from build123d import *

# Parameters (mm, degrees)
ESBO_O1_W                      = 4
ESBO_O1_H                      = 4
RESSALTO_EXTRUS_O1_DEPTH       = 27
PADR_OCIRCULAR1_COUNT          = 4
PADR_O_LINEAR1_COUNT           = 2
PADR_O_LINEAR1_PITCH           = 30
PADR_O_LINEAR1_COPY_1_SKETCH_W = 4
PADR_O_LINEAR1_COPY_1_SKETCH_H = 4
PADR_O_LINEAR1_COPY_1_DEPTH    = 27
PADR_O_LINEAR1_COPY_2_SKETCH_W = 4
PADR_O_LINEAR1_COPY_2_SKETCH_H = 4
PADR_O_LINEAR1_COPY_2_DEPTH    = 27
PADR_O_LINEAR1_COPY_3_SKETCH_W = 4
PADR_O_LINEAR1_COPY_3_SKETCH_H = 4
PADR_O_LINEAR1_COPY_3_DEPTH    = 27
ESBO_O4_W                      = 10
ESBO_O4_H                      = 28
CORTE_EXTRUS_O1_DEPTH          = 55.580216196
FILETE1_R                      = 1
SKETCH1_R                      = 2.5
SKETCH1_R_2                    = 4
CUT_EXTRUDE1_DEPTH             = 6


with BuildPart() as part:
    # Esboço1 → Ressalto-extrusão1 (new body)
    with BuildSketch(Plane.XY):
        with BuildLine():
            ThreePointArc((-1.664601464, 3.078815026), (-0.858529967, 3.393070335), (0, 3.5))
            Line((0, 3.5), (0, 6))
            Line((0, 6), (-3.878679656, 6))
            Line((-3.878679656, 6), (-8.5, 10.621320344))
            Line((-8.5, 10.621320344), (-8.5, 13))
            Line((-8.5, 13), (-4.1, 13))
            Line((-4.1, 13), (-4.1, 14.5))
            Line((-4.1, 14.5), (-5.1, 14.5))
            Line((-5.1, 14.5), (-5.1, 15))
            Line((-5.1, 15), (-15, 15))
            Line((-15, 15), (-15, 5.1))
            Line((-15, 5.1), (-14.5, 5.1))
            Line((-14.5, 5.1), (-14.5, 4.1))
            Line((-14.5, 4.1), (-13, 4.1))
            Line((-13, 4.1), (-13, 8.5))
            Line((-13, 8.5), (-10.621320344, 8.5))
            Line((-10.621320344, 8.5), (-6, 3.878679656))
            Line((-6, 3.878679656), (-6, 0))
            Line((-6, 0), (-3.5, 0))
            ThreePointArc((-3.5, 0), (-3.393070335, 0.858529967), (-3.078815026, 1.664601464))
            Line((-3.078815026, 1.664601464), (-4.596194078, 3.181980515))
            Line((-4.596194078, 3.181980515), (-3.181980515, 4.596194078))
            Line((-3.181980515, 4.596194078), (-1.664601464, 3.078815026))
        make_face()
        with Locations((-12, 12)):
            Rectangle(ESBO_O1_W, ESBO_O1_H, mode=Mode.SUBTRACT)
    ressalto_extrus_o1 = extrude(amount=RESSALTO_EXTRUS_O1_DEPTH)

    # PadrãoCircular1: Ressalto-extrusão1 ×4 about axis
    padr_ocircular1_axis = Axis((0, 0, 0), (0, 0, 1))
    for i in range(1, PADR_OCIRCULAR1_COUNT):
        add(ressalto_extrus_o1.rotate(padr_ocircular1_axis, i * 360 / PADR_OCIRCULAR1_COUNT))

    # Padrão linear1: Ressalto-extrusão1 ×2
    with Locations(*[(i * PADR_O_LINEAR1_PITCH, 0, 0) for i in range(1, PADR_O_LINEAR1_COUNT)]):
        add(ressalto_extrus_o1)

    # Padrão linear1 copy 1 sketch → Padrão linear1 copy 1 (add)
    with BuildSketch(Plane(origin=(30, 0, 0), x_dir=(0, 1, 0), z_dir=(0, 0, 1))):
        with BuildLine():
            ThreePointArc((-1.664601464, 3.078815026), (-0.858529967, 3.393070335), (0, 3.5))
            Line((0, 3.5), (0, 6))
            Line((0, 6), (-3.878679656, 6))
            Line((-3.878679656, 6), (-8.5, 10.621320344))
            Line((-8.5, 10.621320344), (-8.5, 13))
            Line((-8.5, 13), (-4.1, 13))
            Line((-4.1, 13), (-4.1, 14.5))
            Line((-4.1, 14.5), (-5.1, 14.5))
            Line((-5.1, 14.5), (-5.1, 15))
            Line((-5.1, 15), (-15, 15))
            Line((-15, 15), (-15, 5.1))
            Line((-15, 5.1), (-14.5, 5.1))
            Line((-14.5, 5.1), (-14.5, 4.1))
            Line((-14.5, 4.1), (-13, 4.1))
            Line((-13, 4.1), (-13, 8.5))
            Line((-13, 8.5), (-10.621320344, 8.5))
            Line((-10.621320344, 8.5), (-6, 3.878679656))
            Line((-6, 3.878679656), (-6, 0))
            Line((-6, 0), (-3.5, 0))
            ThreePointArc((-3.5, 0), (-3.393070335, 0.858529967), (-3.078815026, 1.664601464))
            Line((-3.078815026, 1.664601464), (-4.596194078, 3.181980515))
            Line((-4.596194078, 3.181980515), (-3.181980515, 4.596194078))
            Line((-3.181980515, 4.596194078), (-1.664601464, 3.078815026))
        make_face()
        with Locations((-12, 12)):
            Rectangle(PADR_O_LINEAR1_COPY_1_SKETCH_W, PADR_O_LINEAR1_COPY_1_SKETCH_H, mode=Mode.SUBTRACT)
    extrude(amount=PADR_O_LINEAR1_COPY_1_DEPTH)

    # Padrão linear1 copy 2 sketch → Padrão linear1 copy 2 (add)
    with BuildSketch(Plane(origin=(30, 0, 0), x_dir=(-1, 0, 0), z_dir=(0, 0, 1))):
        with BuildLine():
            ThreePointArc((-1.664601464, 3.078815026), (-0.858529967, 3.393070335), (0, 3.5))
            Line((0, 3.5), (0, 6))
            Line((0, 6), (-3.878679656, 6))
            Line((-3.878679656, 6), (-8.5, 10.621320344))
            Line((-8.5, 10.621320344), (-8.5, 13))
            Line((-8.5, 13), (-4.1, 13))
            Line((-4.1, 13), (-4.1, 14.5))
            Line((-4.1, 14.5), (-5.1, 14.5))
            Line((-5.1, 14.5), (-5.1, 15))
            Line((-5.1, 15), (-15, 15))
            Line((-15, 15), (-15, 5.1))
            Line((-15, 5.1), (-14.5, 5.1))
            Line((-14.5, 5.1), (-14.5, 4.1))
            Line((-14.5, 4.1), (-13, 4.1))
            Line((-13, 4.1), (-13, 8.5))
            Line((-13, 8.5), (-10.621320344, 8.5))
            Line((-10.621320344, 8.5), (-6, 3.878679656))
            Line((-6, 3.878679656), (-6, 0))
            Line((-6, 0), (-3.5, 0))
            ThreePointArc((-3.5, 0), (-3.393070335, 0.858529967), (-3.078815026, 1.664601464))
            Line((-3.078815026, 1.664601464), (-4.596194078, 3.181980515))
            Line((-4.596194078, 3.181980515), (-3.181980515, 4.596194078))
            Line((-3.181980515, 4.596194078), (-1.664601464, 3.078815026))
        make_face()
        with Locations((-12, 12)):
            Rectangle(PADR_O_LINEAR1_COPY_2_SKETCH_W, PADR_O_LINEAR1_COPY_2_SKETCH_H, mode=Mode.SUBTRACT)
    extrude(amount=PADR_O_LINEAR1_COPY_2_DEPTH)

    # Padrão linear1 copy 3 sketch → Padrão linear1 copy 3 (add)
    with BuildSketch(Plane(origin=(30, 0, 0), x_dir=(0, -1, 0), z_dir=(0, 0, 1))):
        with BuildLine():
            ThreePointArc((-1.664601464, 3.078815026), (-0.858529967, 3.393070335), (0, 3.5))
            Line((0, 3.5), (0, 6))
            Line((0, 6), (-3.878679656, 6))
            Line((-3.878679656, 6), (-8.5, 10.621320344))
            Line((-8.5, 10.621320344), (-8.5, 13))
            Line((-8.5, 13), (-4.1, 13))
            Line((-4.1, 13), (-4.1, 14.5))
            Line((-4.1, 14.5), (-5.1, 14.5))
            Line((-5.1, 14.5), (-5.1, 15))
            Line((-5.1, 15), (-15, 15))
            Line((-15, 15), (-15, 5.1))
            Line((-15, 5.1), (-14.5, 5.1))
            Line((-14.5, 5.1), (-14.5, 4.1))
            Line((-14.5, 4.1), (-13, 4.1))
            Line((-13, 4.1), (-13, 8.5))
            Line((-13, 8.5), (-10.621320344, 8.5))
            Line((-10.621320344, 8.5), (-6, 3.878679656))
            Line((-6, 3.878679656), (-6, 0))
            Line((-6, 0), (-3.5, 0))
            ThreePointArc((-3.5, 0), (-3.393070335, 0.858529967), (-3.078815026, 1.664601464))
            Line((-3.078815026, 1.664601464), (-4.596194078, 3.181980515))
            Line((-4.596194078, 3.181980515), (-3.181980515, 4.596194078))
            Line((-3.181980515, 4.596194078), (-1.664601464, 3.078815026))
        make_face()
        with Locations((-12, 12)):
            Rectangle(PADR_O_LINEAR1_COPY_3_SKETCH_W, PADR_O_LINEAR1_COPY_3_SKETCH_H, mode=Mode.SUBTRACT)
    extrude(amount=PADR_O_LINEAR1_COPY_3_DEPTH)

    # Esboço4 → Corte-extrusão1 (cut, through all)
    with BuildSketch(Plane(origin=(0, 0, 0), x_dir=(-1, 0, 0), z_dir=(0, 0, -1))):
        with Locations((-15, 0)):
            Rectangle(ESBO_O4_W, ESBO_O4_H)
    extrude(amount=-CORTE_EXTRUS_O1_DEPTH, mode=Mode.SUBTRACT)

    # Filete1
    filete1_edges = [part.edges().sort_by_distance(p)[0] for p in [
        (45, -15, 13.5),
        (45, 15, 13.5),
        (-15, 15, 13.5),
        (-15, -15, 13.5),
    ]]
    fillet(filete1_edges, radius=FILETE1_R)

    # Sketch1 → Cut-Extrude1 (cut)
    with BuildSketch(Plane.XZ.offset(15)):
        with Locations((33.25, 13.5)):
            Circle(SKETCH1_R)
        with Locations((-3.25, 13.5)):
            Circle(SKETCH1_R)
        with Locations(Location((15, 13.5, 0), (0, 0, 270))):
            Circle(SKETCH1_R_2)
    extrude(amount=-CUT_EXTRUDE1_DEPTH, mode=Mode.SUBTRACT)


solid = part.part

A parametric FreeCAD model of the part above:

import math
import FreeCAD as App
import Part
import Sketcher

V = App.Vector
Q = App.Units.Quantity


def edges_at(feature, points):
    """Names of the edges that pass closest to the given points."""
    edges = feature.Shape.Edges
    near = lambda p: min(range(len(edges)), key=lambda i: edges[i].distToShape(Part.Vertex(*p))[0])
    return sorted({f"Edge{near(p) + 1}" for p in points})


def add_polygon(sketch, points):
    """Adds a closed chain of lines whose ends are joined by coincident constraints."""
    first, n = sketch.GeometryCount, len(points)
    for a, b in zip(points, points[1:] + points[:1]):
        sketch.addGeometry(Part.LineSegment(App.Vector(*a, 0), App.Vector(*b, 0)), False)
    for i in range(n):
        sketch.addConstraint(Sketcher.Constraint("Coincident", first + i, 2, first + (i + 1) % n, 1))

doc = App.newDocument("Part")
body = doc.addObject("PartDesign::Body", "Body")

sketch1 = body.newObject("Sketcher::SketchObject", "Sketch")
sketch1.AttachmentSupport = (doc.getObject("XY_Plane"), [""])
sketch1.MapMode = "FlatFace"
sketch1.addGeometry(Part.ArcOfCircle(Part.Circle(V(0, 0, 0), V(0, 0, 1), 3.5), math.radians(90), math.radians(118)), False)
sketch1.addGeometry(Part.LineSegment(V(0, 3.5, 0), V(0, 6, 0)), False)
sketch1.addGeometry(Part.LineSegment(V(0, 6, 0), V(-3.9, 6, 0)), False)
sketch1.addGeometry(Part.LineSegment(V(-3.9, 6, 0), V(-8.5, 10.6, 0)), False)
sketch1.addGeometry(Part.LineSegment(V(-8.5, 10.6, 0), V(-8.5, 13, 0)), False)
sketch1.addGeometry(Part.LineSegment(V(-8.5, 13, 0), V(-4.1, 13, 0)), False)
sketch1.addGeometry(Part.LineSegment(V(-4.1, 13, 0), V(-4.1, 14.5, 0)), False)
sketch1.addGeometry(Part.LineSegment(V(-4.1, 14.5, 0), V(-5.1, 14.5, 0)), False)
sketch1.addGeometry(Part.LineSegment(V(-5.1, 14.5, 0), V(-5.1, 15, 0)), False)
sketch1.addGeometry(Part.LineSegment(V(-5.1, 15, 0), V(-15, 15, 0)), False)
sketch1.addGeometry(Part.LineSegment(V(-15, 15, 0), V(-15, 5.1, 0)), False)
sketch1.addGeometry(Part.LineSegment(V(-15, 5.1, 0), V(-14.5, 5.1, 0)), False)
sketch1.addGeometry(Part.LineSegment(V(-14.5, 5.1, 0), V(-14.5, 4.1, 0)), False)
sketch1.addGeometry(Part.LineSegment(V(-14.5, 4.1, 0), V(-13, 4.1, 0)), False)
sketch1.addGeometry(Part.LineSegment(V(-13, 4.1, 0), V(-13, 8.5, 0)), False)
sketch1.addGeometry(Part.LineSegment(V(-13, 8.5, 0), V(-10.6, 8.5, 0)), False)
sketch1.addGeometry(Part.LineSegment(V(-10.6, 8.5, 0), V(-6, 3.9, 0)), False)
sketch1.addGeometry(Part.LineSegment(V(-6, 3.9, 0), V(-6, 0, 0)), False)
sketch1.addGeometry(Part.LineSegment(V(-6, 0, 0), V(-3.5, 0, 0)), False)
sketch1.addGeometry(Part.ArcOfCircle(Part.Circle(V(0, 0, 0), V(0, 0, 1), 3.5), math.radians(152), math.radians(180)), False)
sketch1.addGeometry(Part.LineSegment(V(-3.1, 1.7, 0), V(-4.6, 3.2, 0)), False)
sketch1.addGeometry(Part.LineSegment(V(-4.6, 3.2, 0), V(-3.2, 4.6, 0)), False)
sketch1.addGeometry(Part.LineSegment(V(-3.2, 4.6, 0), V(-1.7, 3.1, 0)), False)
add_polygon(sketch1, [(-10, 10), (-14, 10), (-14, 14), (-10, 14)])
sketch1.addConstraint([
    Sketcher.Constraint("Coincident", 0, 1, 1, 1),
    Sketcher.Constraint("Coincident", 1, 2, 2, 1),
    Sketcher.Constraint("Coincident", 2, 2, 3, 1),
    Sketcher.Constraint("Coincident", 3, 2, 4, 1),
    Sketcher.Constraint("Coincident", 4, 2, 5, 1),
    Sketcher.Constraint("Coincident", 5, 2, 6, 1),
    Sketcher.Constraint("Coincident", 6, 2, 7, 1),
    Sketcher.Constraint("Coincident", 7, 2, 8, 1),
    Sketcher.Constraint("Coincident", 8, 2, 9, 1),
    Sketcher.Constraint("Coincident", 9, 2, 10, 1),
    Sketcher.Constraint("Coincident", 10, 2, 11, 1),
    Sketcher.Constraint("Coincident", 11, 2, 12, 1),
    Sketcher.Constraint("Coincident", 12, 2, 13, 1),
    Sketcher.Constraint("Coincident", 13, 2, 14, 1),
    Sketcher.Constraint("Coincident", 14, 2, 15, 1),
    Sketcher.Constraint("Coincident", 15, 2, 16, 1),
    Sketcher.Constraint("Coincident", 16, 2, 17, 1),
    Sketcher.Constraint("Coincident", 17, 2, 18, 1),
    Sketcher.Constraint("Coincident", 18, 2, 19, 2),
    Sketcher.Constraint("Coincident", 19, 1, 20, 1),
    Sketcher.Constraint("Coincident", 20, 2, 21, 1),
    Sketcher.Constraint("Coincident", 21, 2, 22, 1),
    Sketcher.Constraint("Coincident", 22, 2, 0, 2),
    Sketcher.Constraint("Vertical", 1),
    Sketcher.Constraint("Horizontal", 2),
    Sketcher.Constraint("Vertical", 4),
    Sketcher.Constraint("Horizontal", 5),
    Sketcher.Constraint("Vertical", 6),
    Sketcher.Constraint("Horizontal", 7),
    Sketcher.Constraint("Vertical", 8),
    Sketcher.Constraint("Horizontal", 9),
    Sketcher.Constraint("Vertical", 10),
    Sketcher.Constraint("Horizontal", 11),
    Sketcher.Constraint("Vertical", 12),
    Sketcher.Constraint("Horizontal", 13),
    Sketcher.Constraint("Vertical", 14),
    Sketcher.Constraint("Horizontal", 15),
    Sketcher.Constraint("Vertical", 17),
    Sketcher.Constraint("Horizontal", 18),
    Sketcher.Constraint("Horizontal", 23),
    Sketcher.Constraint("Vertical", 24),
    Sketcher.Constraint("Horizontal", 25),
    Sketcher.Constraint("Vertical", 26),
    Sketcher.Constraint("Coincident", 0, 3, -1, 1),
    Sketcher.Constraint("Coincident", 19, 3, -1, 1),
    Sketcher.Constraint("Equal", 0, 19),
    Sketcher.Constraint("PointOnObject", 0, 1, -2),
    Sketcher.Constraint("PointOnObject", 17, 2, -1),
    Sketcher.Constraint("Parallel", 3, 16),
    Sketcher.Constraint("Parallel", 16, 20),
    Sketcher.Constraint("Perpendicular", 20, 21),
    Sketcher.Constraint("Perpendicular", 21, 22),
    Sketcher.Constraint("Equal", 18, 1),
    Sketcher.Constraint("Equal", 15, 4),
    Sketcher.Constraint("Equal", 13, 6),
    Sketcher.Constraint("Equal", 11, 8),
    Sketcher.Constraint("Equal", 9, 10),
    Sketcher.Constraint("Equal", 7, 12),
    Sketcher.Constraint("Equal", 5, 14),
    Sketcher.Constraint("Equal", 2, 17),
    Sketcher.Constraint("Equal", 25, 24),
    Sketcher.Constraint("Equal", 20, 22),
    Sketcher.Constraint("Radius", 0, Q("3.5 mm")),
    Sketcher.Constraint("DistanceX", 7, 2, 7, 1, Q("1 mm")),
    Sketcher.Constraint("DistanceX", 23, 2, 23, 1, Q("4 mm")),
    Sketcher.Constraint("Angle", 3, Q("135 deg")),
    Sketcher.Constraint("Distance", 21, Q("2 mm")),
    Sketcher.Constraint("DistanceX", 5, 1, 5, 2, Q("4.4 mm")),
    Sketcher.Constraint("DistanceX", 9, 2, 9, 1, Q("9.9 mm")),
    Sketcher.Constraint("DistanceX", 11, 1, 11, 2, Q("0.5 mm")),
    Sketcher.Constraint("DistanceX", 13, 1, 13, 2, Q("1.5 mm")),
    Sketcher.Constraint("DistanceX", 18, 1, 18, 2, Q("2.5 mm")),
    Sketcher.Constraint("DistanceY", -1, 1, 4, 2, Q("13 mm")),
    Sketcher.Constraint("DistanceX", 23, 2, -1, 1, Q("14 mm")),
    Sketcher.Constraint("DistanceY", -1, 1, 23, 2, Q("10 mm")),
    Sketcher.Constraint("Distance", 20, Q("2.145898 mm")),
    Sketcher.Constraint("DistanceX", 2, 2, 2, 1, Q("3.87868 mm")),
])
pad1 = body.newObject("PartDesign::Pad", "Pad")
pad1.Profile = sketch1
pad1.Length = 27
doc.recompute()

polarpattern = body.newObject("PartDesign::PolarPattern", "PolarPattern")
polarpattern.Originals = [pad1]
polarpattern.Axis = (doc.getObject("Z_Axis"), [""])
polarpattern.Angle = 360
polarpattern.Occurrences = 4
body.Tip = polarpattern
doc.recompute()

linearpattern = body.newObject("PartDesign::LinearPattern", "LinearPattern")
linearpattern.Originals = [pad1]
linearpattern.Direction = (doc.getObject("X_Axis"), [""])
linearpattern.Mode = "offset"
linearpattern.Offset = 30
linearpattern.Occurrences = 2
body.Tip = linearpattern

sketch2 = body.newObject("Sketcher::SketchObject", "Sketch001")
sketch2.AttachmentSupport = (doc.getObject("XY_Plane"), [""])
sketch2.MapMode = "FlatFace"
sketch2.addGeometry(Part.ArcOfCircle(Part.Circle(V(30, 0, 0), V(0, 0, 1), 3.5), math.radians(180), math.radians(208)), False)
sketch2.addGeometry(Part.LineSegment(V(26.5, 0, 0), V(24, 0, 0)), False)
sketch2.addGeometry(Part.LineSegment(V(24, 0, 0), V(24, -3.9, 0)), False)
sketch2.addGeometry(Part.LineSegment(V(24, -3.9, 0), V(19.4, -8.5, 0)), False)
sketch2.addGeometry(Part.LineSegment(V(19.4, -8.5, 0), V(17, -8.5, 0)), False)
sketch2.addGeometry(Part.LineSegment(V(17, -8.5, 0), V(17, -4.1, 0)), False)
sketch2.addGeometry(Part.LineSegment(V(17, -4.1, 0), V(15.5, -4.1, 0)), False)
sketch2.addGeometry(Part.LineSegment(V(15.5, -4.1, 0), V(15.5, -5.1, 0)), False)
sketch2.addGeometry(Part.LineSegment(V(15.5, -5.1, 0), V(15, -5.1, 0)), False)
sketch2.addGeometry(Part.LineSegment(V(15, -5.1, 0), V(15, -15, 0)), False)
sketch2.addGeometry(Part.LineSegment(V(15, -15, 0), V(24.9, -15, 0)), False)
sketch2.addGeometry(Part.LineSegment(V(24.9, -15, 0), V(24.9, -14.5, 0)), False)
sketch2.addGeometry(Part.LineSegment(V(24.9, -14.5, 0), V(25.9, -14.5, 0)), False)
sketch2.addGeometry(Part.LineSegment(V(25.9, -14.5, 0), V(25.9, -13, 0)), False)
sketch2.addGeometry(Part.LineSegment(V(25.9, -13, 0), V(21.5, -13, 0)), False)
sketch2.addGeometry(Part.LineSegment(V(21.5, -13, 0), V(21.5, -10.6, 0)), False)
sketch2.addGeometry(Part.LineSegment(V(21.5, -10.6, 0), V(26.1, -6, 0)), False)
sketch2.addGeometry(Part.LineSegment(V(26.1, -6, 0), V(30, -6, 0)), False)
sketch2.addGeometry(Part.LineSegment(V(30, -6, 0), V(30, -3.5, 0)), False)
sketch2.addGeometry(Part.ArcOfCircle(Part.Circle(V(30, 0, 0), V(0, 0, 1), 3.5), math.radians(-118), math.radians(-90)), False)
sketch2.addGeometry(Part.LineSegment(V(28.3, -3.1, 0), V(26.8, -4.6, 0)), False)
sketch2.addGeometry(Part.LineSegment(V(26.8, -4.6, 0), V(25.4, -3.2, 0)), False)
sketch2.addGeometry(Part.LineSegment(V(25.4, -3.2, 0), V(26.9, -1.7, 0)), False)
add_polygon(sketch2, [(20, -10), (20, -14), (16, -14), (16, -10)])
sketch2.addConstraint([
    Sketcher.Constraint("Coincident", 0, 1, 1, 1),
    Sketcher.Constraint("Coincident", 1, 2, 2, 1),
    Sketcher.Constraint("Coincident", 2, 2, 3, 1),
    Sketcher.Constraint("Coincident", 3, 2, 4, 1),
    Sketcher.Constraint("Coincident", 4, 2, 5, 1),
    Sketcher.Constraint("Coincident", 5, 2, 6, 1),
    Sketcher.Constraint("Coincident", 6, 2, 7, 1),
    Sketcher.Constraint("Coincident", 7, 2, 8, 1),
    Sketcher.Constraint("Coincident", 8, 2, 9, 1),
    Sketcher.Constraint("Coincident", 9, 2, 10, 1),
    Sketcher.Constraint("Coincident", 10, 2, 11, 1),
    Sketcher.Constraint("Coincident", 11, 2, 12, 1),
    Sketcher.Constraint("Coincident", 12, 2, 13, 1),
    Sketcher.Constraint("Coincident", 13, 2, 14, 1),
    Sketcher.Constraint("Coincident", 14, 2, 15, 1),
    Sketcher.Constraint("Coincident", 15, 2, 16, 1),
    Sketcher.Constraint("Coincident", 16, 2, 17, 1),
    Sketcher.Constraint("Coincident", 17, 2, 18, 1),
    Sketcher.Constraint("Coincident", 18, 2, 19, 2),
    Sketcher.Constraint("Coincident", 19, 1, 20, 1),
    Sketcher.Constraint("Coincident", 20, 2, 21, 1),
    Sketcher.Constraint("Coincident", 21, 2, 22, 1),
    Sketcher.Constraint("Coincident", 22, 2, 0, 2),
    Sketcher.Constraint("Horizontal", 1),
    Sketcher.Constraint("Vertical", 2),
    Sketcher.Constraint("Horizontal", 4),
    Sketcher.Constraint("Vertical", 5),
    Sketcher.Constraint("Horizontal", 6),
    Sketcher.Constraint("Vertical", 7),
    Sketcher.Constraint("Horizontal", 8),
    Sketcher.Constraint("Vertical", 9),
    Sketcher.Constraint("Horizontal", 10),
    Sketcher.Constraint("Vertical", 11),
    Sketcher.Constraint("Horizontal", 12),
    Sketcher.Constraint("Vertical", 13),
    Sketcher.Constraint("Horizontal", 14),
    Sketcher.Constraint("Vertical", 15),
    Sketcher.Constraint("Horizontal", 17),
    Sketcher.Constraint("Vertical", 18),
    Sketcher.Constraint("Vertical", 23),
    Sketcher.Constraint("Horizontal", 24),
    Sketcher.Constraint("Vertical", 25),
    Sketcher.Constraint("Horizontal", 26),
    Sketcher.Constraint("Coincident", 19, 3, 0, 3),
    Sketcher.Constraint("Equal", 0, 19),
    Sketcher.Constraint("PointOnObject", 0, 3, -1),
    Sketcher.Constraint("PointOnObject", 0, 1, -1),
    Sketcher.Constraint("Parallel", 3, 16),
    Sketcher.Constraint("Parallel", 16, 20),
    Sketcher.Constraint("Perpendicular", 20, 21),
    Sketcher.Constraint("Perpendicular", 21, 22),
    Sketcher.Constraint("Vertical", 19, 3, 17, 2),
    Sketcher.Constraint("Equal", 17, 2),
    Sketcher.Constraint("Equal", 14, 5),
    Sketcher.Constraint("Equal", 12, 7),
    Sketcher.Constraint("Equal", 10, 9),
    Sketcher.Constraint("Equal", 8, 11),
    Sketcher.Constraint("Equal", 6, 13),
    Sketcher.Constraint("Equal", 4, 15),
    Sketcher.Constraint("Equal", 1, 18),
    Sketcher.Constraint("Equal", 26, 23),
    Sketcher.Constraint("Equal", 20, 22),
    Sketcher.Constraint("Radius", 0, Q("3.5 mm")),
    Sketcher.Constraint("DistanceX", 12, 1, 12, 2, Q("1 mm")),
    Sketcher.Constraint("DistanceX", 24, 2, 24, 1, Q("4 mm")),
    Sketcher.Constraint("Angle", 3, Q("-135 deg")),
    Sketcher.Constraint("Distance", 21, Q("2 mm")),
    Sketcher.Constraint("DistanceX", 1, 2, 1, 1, Q("2.5 mm")),
    Sketcher.Constraint("DistanceX", 6, 2, 6, 1, Q("1.5 mm")),
    Sketcher.Constraint("DistanceX", 8, 2, 8, 1, Q("0.5 mm")),
    Sketcher.Constraint("DistanceX", 10, 1, 10, 2, Q("9.9 mm")),
    Sketcher.Constraint("DistanceX", 14, 2, 14, 1, Q("4.4 mm")),
    Sketcher.Constraint("DistanceX", -1, 1, 0, 3, Q("30 mm")),
    Sketcher.Constraint("DistanceX", -1, 1, 4, 2, Q("17 mm")),
    Sketcher.Constraint("DistanceX", -1, 1, 23, 2, Q("20 mm")),
    Sketcher.Constraint("DistanceY", 23, 2, -1, 1, Q("14 mm")),
    Sketcher.Constraint("Distance", 20, Q("2.145898 mm")),
    Sketcher.Constraint("DistanceX", 4, 2, 4, 1, Q("2.37868 mm")),
])
pad2 = body.newObject("PartDesign::Pad", "Pad001")
pad2.Profile = sketch2
pad2.Length = 27

sketch3 = body.newObject("Sketcher::SketchObject", "Sketch002")
sketch3.AttachmentSupport = (doc.getObject("XY_Plane"), [""])
sketch3.MapMode = "FlatFace"
sketch3.addGeometry(Part.ArcOfCircle(Part.Circle(V(30, 0, 0), V(0, 0, 1), 3.5), math.radians(-90), math.radians(-62)), False)
sketch3.addGeometry(Part.LineSegment(V(30, -3.5, 0), V(30, -6, 0)), False)
sketch3.addGeometry(Part.LineSegment(V(30, -6, 0), V(33.9, -6, 0)), False)
sketch3.addGeometry(Part.LineSegment(V(33.9, -6, 0), V(38.5, -10.6, 0)), False)
sketch3.addGeometry(Part.LineSegment(V(38.5, -10.6, 0), V(38.5, -13, 0)), False)
sketch3.addGeometry(Part.LineSegment(V(38.5, -13, 0), V(34.1, -13, 0)), False)
sketch3.addGeometry(Part.LineSegment(V(34.1, -13, 0), V(34.1, -14.5, 0)), False)
sketch3.addGeometry(Part.LineSegment(V(34.1, -14.5, 0), V(35.1, -14.5, 0)), False)
sketch3.addGeometry(Part.LineSegment(V(35.1, -14.5, 0), V(35.1, -15, 0)), False)
sketch3.addGeometry(Part.LineSegment(V(35.1, -15, 0), V(45, -15, 0)), False)
sketch3.addGeometry(Part.LineSegment(V(45, -15, 0), V(45, -5.1, 0)), False)
sketch3.addGeometry(Part.LineSegment(V(45, -5.1, 0), V(44.5, -5.1, 0)), False)
sketch3.addGeometry(Part.LineSegment(V(44.5, -5.1, 0), V(44.5, -4.1, 0)), False)
sketch3.addGeometry(Part.LineSegment(V(44.5, -4.1, 0), V(43, -4.1, 0)), False)
sketch3.addGeometry(Part.LineSegment(V(43, -4.1, 0), V(43, -8.5, 0)), False)
sketch3.addGeometry(Part.LineSegment(V(43, -8.5, 0), V(40.6, -8.5, 0)), False)
sketch3.addGeometry(Part.LineSegment(V(40.6, -8.5, 0), V(36, -3.9, 0)), False)
sketch3.addGeometry(Part.LineSegment(V(36, -3.9, 0), V(36, 0, 0)), False)
sketch3.addGeometry(Part.LineSegment(V(36, 0, 0), V(33.5, 0, 0)), False)
sketch3.addGeometry(Part.ArcOfCircle(Part.Circle(V(30, 0, 0), V(0, 0, 1), 3.5), math.radians(-28), math.radians(0)), False)
sketch3.addGeometry(Part.LineSegment(V(33.1, -1.7, 0), V(34.6, -3.2, 0)), False)
sketch3.addGeometry(Part.LineSegment(V(34.6, -3.2, 0), V(33.2, -4.6, 0)), False)
sketch3.addGeometry(Part.LineSegment(V(33.2, -4.6, 0), V(31.7, -3.1, 0)), False)
add_polygon(sketch3, [(40, -10), (44, -10), (44, -14), (40, -14)])
sketch3.addConstraint([
    Sketcher.Constraint("Coincident", 0, 1, 1, 1),
    Sketcher.Constraint("Coincident", 1, 2, 2, 1),
    Sketcher.Constraint("Coincident", 2, 2, 3, 1),
    Sketcher.Constraint("Coincident", 3, 2, 4, 1),
    Sketcher.Constraint("Coincident", 4, 2, 5, 1),
    Sketcher.Constraint("Coincident", 5, 2, 6, 1),
    Sketcher.Constraint("Coincident", 6, 2, 7, 1),
    Sketcher.Constraint("Coincident", 7, 2, 8, 1),
    Sketcher.Constraint("Coincident", 8, 2, 9, 1),
    Sketcher.Constraint("Coincident", 9, 2, 10, 1),
    Sketcher.Constraint("Coincident", 10, 2, 11, 1),
    Sketcher.Constraint("Coincident", 11, 2, 12, 1),
    Sketcher.Constraint("Coincident", 12, 2, 13, 1),
    Sketcher.Constraint("Coincident", 13, 2, 14, 1),
    Sketcher.Constraint("Coincident", 14, 2, 15, 1),
    Sketcher.Constraint("Coincident", 15, 2, 16, 1),
    Sketcher.Constraint("Coincident", 16, 2, 17, 1),
    Sketcher.Constraint("Coincident", 17, 2, 18, 1),
    Sketcher.Constraint("Coincident", 18, 2, 19, 2),
    Sketcher.Constraint("Coincident", 19, 1, 20, 1),
    Sketcher.Constraint("Coincident", 20, 2, 21, 1),
    Sketcher.Constraint("Coincident", 21, 2, 22, 1),
    Sketcher.Constraint("Coincident", 22, 2, 0, 2),
    Sketcher.Constraint("Vertical", 1),
    Sketcher.Constraint("Horizontal", 2),
    Sketcher.Constraint("Vertical", 4),
    Sketcher.Constraint("Horizontal", 5),
    Sketcher.Constraint("Vertical", 6),
    Sketcher.Constraint("Horizontal", 7),
    Sketcher.Constraint("Vertical", 8),
    Sketcher.Constraint("Horizontal", 9),
    Sketcher.Constraint("Vertical", 10),
    Sketcher.Constraint("Horizontal", 11),
    Sketcher.Constraint("Vertical", 12),
    Sketcher.Constraint("Horizontal", 13),
    Sketcher.Constraint("Vertical", 14),
    Sketcher.Constraint("Horizontal", 15),
    Sketcher.Constraint("Vertical", 17),
    Sketcher.Constraint("Horizontal", 18),
    Sketcher.Constraint("Horizontal", 23),
    Sketcher.Constraint("Vertical", 24),
    Sketcher.Constraint("Horizontal", 25),
    Sketcher.Constraint("Vertical", 26),
    Sketcher.Constraint("Coincident", 19, 3, 0, 3),
    Sketcher.Constraint("Equal", 0, 19),
    Sketcher.Constraint("PointOnObject", 0, 3, -1),
    Sketcher.Constraint("PointOnObject", 17, 2, -1),
    Sketcher.Constraint("Parallel", 3, 16),
    Sketcher.Constraint("Parallel", 16, 20),
    Sketcher.Constraint("Perpendicular", 20, 21),
    Sketcher.Constraint("Perpendicular", 21, 22),
    Sketcher.Constraint("Vertical", 19, 3, 0, 1),
    Sketcher.Constraint("Equal", 18, 1),
    Sketcher.Constraint("Equal", 15, 4),
    Sketcher.Constraint("Equal", 13, 6),
    Sketcher.Constraint("Equal", 11, 8),
    Sketcher.Constraint("Equal", 9, 10),
    Sketcher.Constraint("Equal", 7, 12),
    Sketcher.Constraint("Equal", 5, 14),
    Sketcher.Constraint("Equal", 2, 17),
    Sketcher.Constraint("Equal", 25, 24),
    Sketcher.Constraint("Equal", 20, 22),
    Sketcher.Constraint("Radius", 0, Q("3.5 mm")),
    Sketcher.Constraint("DistanceX", 7, 1, 7, 2, Q("1 mm")),
    Sketcher.Constraint("DistanceX", 23, 1, 23, 2, Q("4 mm")),
    Sketcher.Constraint("Angle", 3, Q("-45 deg")),
    Sketcher.Constraint("Distance", 21, Q("2 mm")),
    Sketcher.Constraint("DistanceX", 5, 2, 5, 1, Q("4.4 mm")),
    Sketcher.Constraint("DistanceX", 9, 1, 9, 2, Q("9.9 mm")),
    Sketcher.Constraint("DistanceX", 11, 2, 11, 1, Q("0.5 mm")),
    Sketcher.Constraint("DistanceX", 13, 2, 13, 1, Q("1.5 mm")),
    Sketcher.Constraint("DistanceX", 18, 2, 18, 1, Q("2.5 mm")),
    Sketcher.Constraint("DistanceX", -1, 1, 0, 3, Q("30 mm")),
    Sketcher.Constraint("DistanceY", 4, 2, -1, 1, Q("13 mm")),
    Sketcher.Constraint("DistanceX", -1, 1, 23, 2, Q("44 mm")),
    Sketcher.Constraint("DistanceY", 23, 2, -1, 1, Q("10 mm")),
    Sketcher.Constraint("Distance", 20, Q("2.145898 mm")),
    Sketcher.Constraint("DistanceX", 2, 1, 2, 2, Q("3.87868 mm")),
])
pad3 = body.newObject("PartDesign::Pad", "Pad002")
pad3.Profile = sketch3
pad3.Length = 27

sketch4 = body.newObject("Sketcher::SketchObject", "Sketch003")
sketch4.AttachmentSupport = (doc.getObject("XY_Plane"), [""])
sketch4.MapMode = "FlatFace"
sketch4.addGeometry(Part.ArcOfCircle(Part.Circle(V(30, 0, 0), V(0, 0, 1), 3.5), math.radians(0), math.radians(28)), False)
sketch4.addGeometry(Part.LineSegment(V(33.5, 0, 0), V(36, 0, 0)), False)
sketch4.addGeometry(Part.LineSegment(V(36, 0, 0), V(36, 3.9, 0)), False)
sketch4.addGeometry(Part.LineSegment(V(36, 3.9, 0), V(40.6, 8.5, 0)), False)
sketch4.addGeometry(Part.LineSegment(V(40.6, 8.5, 0), V(43, 8.5, 0)), False)
sketch4.addGeometry(Part.LineSegment(V(43, 8.5, 0), V(43, 4.1, 0)), False)
sketch4.addGeometry(Part.LineSegment(V(43, 4.1, 0), V(44.5, 4.1, 0)), False)
sketch4.addGeometry(Part.LineSegment(V(44.5, 4.1, 0), V(44.5, 5.1, 0)), False)
sketch4.addGeometry(Part.LineSegment(V(44.5, 5.1, 0), V(45, 5.1, 0)), False)
sketch4.addGeometry(Part.LineSegment(V(45, 5.1, 0), V(45, 15, 0)), False)
sketch4.addGeometry(Part.LineSegment(V(45, 15, 0), V(35.1, 15, 0)), False)
sketch4.addGeometry(Part.LineSegment(V(35.1, 15, 0), V(35.1, 14.5, 0)), False)
sketch4.addGeometry(Part.LineSegment(V(35.1, 14.5, 0), V(34.1, 14.5, 0)), False)
sketch4.addGeometry(Part.LineSegment(V(34.1, 14.5, 0), V(34.1, 13, 0)), False)
sketch4.addGeometry(Part.LineSegment(V(34.1, 13, 0), V(38.5, 13, 0)), False)
sketch4.addGeometry(Part.LineSegment(V(38.5, 13, 0), V(38.5, 10.6, 0)), False)
sketch4.addGeometry(Part.LineSegment(V(38.5, 10.6, 0), V(33.9, 6, 0)), False)
sketch4.addGeometry(Part.LineSegment(V(33.9, 6, 0), V(30, 6, 0)), False)
sketch4.addGeometry(Part.LineSegment(V(30, 6, 0), V(30, 3.5, 0)), False)
sketch4.addGeometry(Part.ArcOfCircle(Part.Circle(V(30, 0, 0), V(0, 0, 1), 3.5), math.radians(62), math.radians(90)), False)
sketch4.addGeometry(Part.LineSegment(V(31.7, 3.1, 0), V(33.2, 4.6, 0)), False)
sketch4.addGeometry(Part.LineSegment(V(33.2, 4.6, 0), V(34.6, 3.2, 0)), False)
sketch4.addGeometry(Part.LineSegment(V(34.6, 3.2, 0), V(33.1, 1.7, 0)), False)
add_polygon(sketch4, [(40, 10), (40, 14), (44, 14), (44, 10)])
sketch4.addConstraint([
    Sketcher.Constraint("Coincident", 0, 1, 1, 1),
    Sketcher.Constraint("Coincident", 1, 2, 2, 1),
    Sketcher.Constraint("Coincident", 2, 2, 3, 1),
    Sketcher.Constraint("Coincident", 3, 2, 4, 1),
    Sketcher.Constraint("Coincident", 4, 2, 5, 1),
    Sketcher.Constraint("Coincident", 5, 2, 6, 1),
    Sketcher.Constraint("Coincident", 6, 2, 7, 1),
    Sketcher.Constraint("Coincident", 7, 2, 8, 1),
    Sketcher.Constraint("Coincident", 8, 2, 9, 1),
    Sketcher.Constraint("Coincident", 9, 2, 10, 1),
    Sketcher.Constraint("Coincident", 10, 2, 11, 1),
    Sketcher.Constraint("Coincident", 11, 2, 12, 1),
    Sketcher.Constraint("Coincident", 12, 2, 13, 1),
    Sketcher.Constraint("Coincident", 13, 2, 14, 1),
    Sketcher.Constraint("Coincident", 14, 2, 15, 1),
    Sketcher.Constraint("Coincident", 15, 2, 16, 1),
    Sketcher.Constraint("Coincident", 16, 2, 17, 1),
    Sketcher.Constraint("Coincident", 17, 2, 18, 1),
    Sketcher.Constraint("Coincident", 18, 2, 19, 2),
    Sketcher.Constraint("Coincident", 19, 1, 20, 1),
    Sketcher.Constraint("Coincident", 20, 2, 21, 1),
    Sketcher.Constraint("Coincident", 21, 2, 22, 1),
    Sketcher.Constraint("Coincident", 22, 2, 0, 2),
    Sketcher.Constraint("Horizontal", 1),
    Sketcher.Constraint("Vertical", 2),
    Sketcher.Constraint("Horizontal", 4),
    Sketcher.Constraint("Vertical", 5),
    Sketcher.Constraint("Horizontal", 6),
    Sketcher.Constraint("Vertical", 7),
    Sketcher.Constraint("Horizontal", 8),
    Sketcher.Constraint("Vertical", 9),
    Sketcher.Constraint("Horizontal", 10),
    Sketcher.Constraint("Vertical", 11),
    Sketcher.Constraint("Horizontal", 12),
    Sketcher.Constraint("Vertical", 13),
    Sketcher.Constraint("Horizontal", 14),
    Sketcher.Constraint("Vertical", 15),
    Sketcher.Constraint("Horizontal", 17),
    Sketcher.Constraint("Vertical", 18),
    Sketcher.Constraint("Vertical", 23),
    Sketcher.Constraint("Horizontal", 24),
    Sketcher.Constraint("Vertical", 25),
    Sketcher.Constraint("Horizontal", 26),
    Sketcher.Constraint("Coincident", 19, 3, 0, 3),
    Sketcher.Constraint("Equal", 0, 19),
    Sketcher.Constraint("PointOnObject", 0, 3, -1),
    Sketcher.Constraint("PointOnObject", 0, 1, -1),
    Sketcher.Constraint("Parallel", 3, 16),
    Sketcher.Constraint("Parallel", 16, 20),
    Sketcher.Constraint("Perpendicular", 20, 21),
    Sketcher.Constraint("Perpendicular", 21, 22),
    Sketcher.Constraint("Vertical", 19, 3, 17, 2),
    Sketcher.Constraint("Equal", 17, 2),
    Sketcher.Constraint("Equal", 14, 5),
    Sketcher.Constraint("Equal", 12, 7),
    Sketcher.Constraint("Equal", 10, 9),
    Sketcher.Constraint("Equal", 8, 11),
    Sketcher.Constraint("Equal", 6, 13),
    Sketcher.Constraint("Equal", 4, 15),
    Sketcher.Constraint("Equal", 1, 18),
    Sketcher.Constraint("Equal", 26, 23),
    Sketcher.Constraint("Equal", 20, 22),
    Sketcher.Constraint("Radius", 0, Q("3.5 mm")),
    Sketcher.Constraint("DistanceX", 12, 2, 12, 1, Q("1 mm")),
    Sketcher.Constraint("DistanceX", 24, 1, 24, 2, Q("4 mm")),
    Sketcher.Constraint("Angle", 3, Q("45 deg")),
    Sketcher.Constraint("Distance", 21, Q("2 mm")),
    Sketcher.Constraint("DistanceX", 1, 1, 1, 2, Q("2.5 mm")),
    Sketcher.Constraint("DistanceX", 6, 1, 6, 2, Q("1.5 mm")),
    Sketcher.Constraint("DistanceX", 8, 1, 8, 2, Q("0.5 mm")),
    Sketcher.Constraint("DistanceX", 10, 2, 10, 1, Q("9.9 mm")),
    Sketcher.Constraint("DistanceX", 14, 1, 14, 2, Q("4.4 mm")),
    Sketcher.Constraint("DistanceX", -1, 1, 0, 3, Q("30 mm")),
    Sketcher.Constraint("DistanceX", -1, 1, 4, 2, Q("43 mm")),
    Sketcher.Constraint("DistanceX", -1, 1, 23, 2, Q("40 mm")),
    Sketcher.Constraint("DistanceY", -1, 1, 23, 2, Q("14 mm")),
    Sketcher.Constraint("Distance", 20, Q("2.145898 mm")),
    Sketcher.Constraint("DistanceX", 4, 1, 4, 2, Q("2.37868 mm")),
])
pad4 = body.newObject("PartDesign::Pad", "Pad003")
pad4.Profile = sketch4
pad4.Length = 27

sketch5 = body.newObject("Sketcher::SketchObject", "Sketch004")
sketch5.AttachmentSupport = (doc.getObject("XY_Plane"), [""])
sketch5.MapMode = "FlatFace"
add_polygon(sketch5, [(20, 14), (20, -14), (10, -14), (10, 14)])
sketch5.addConstraint([
    Sketcher.Constraint("Vertical", 0),
    Sketcher.Constraint("Horizontal", 1),
    Sketcher.Constraint("Vertical", 2),
    Sketcher.Constraint("Horizontal", 3),
    Sketcher.Constraint("DistanceX", 1, 2, 1, 1, Q("10 mm")),
    Sketcher.Constraint("DistanceY", 0, 2, 0, 1, Q("28 mm")),
    Sketcher.Constraint("DistanceX", -1, 1, 0, 2, Q("20 mm")),
    Sketcher.Constraint("DistanceY", 0, 2, -1, 1, Q("14 mm")),
])
pocket1 = body.newObject("PartDesign::Pocket", "Pocket")
pocket1.Profile = sketch5
pocket1.Type = "ThroughAll"
pocket1.Reversed = True
doc.recompute()

fillet = body.newObject("PartDesign::Fillet", "Fillet")
fillet.Base = (pocket1, edges_at(pocket1, [
    (45, -15, 13.5),
    (45, 15, 13.5),
    (-15, 15, 13.5),
    (-15, -15, 13.5),
]))
fillet.Radius = 1

sketch6 = body.newObject("Sketcher::SketchObject", "Sketch005")
sketch6.AttachmentSupport = (doc.getObject("XZ_Plane"), [""])
sketch6.MapMode = "FlatFace"
sketch6.AttachmentOffset = App.Placement(V(0, 0, 15), App.Rotation())
sketch6.addGeometry([
    Part.Circle(V(33.2, 13.5, 0), V(0, 0, 1), 2.5),
    Part.Circle(V(-3.2, 13.5, 0), V(0, 0, 1), 2.5),
    Part.Circle(V(15, 13.5, 0), V(0, 0, 1), 4),
], False)
sketch6.addConstraint([
    Sketcher.Constraint("Equal", 0, 1),
    Sketcher.Constraint("Horizontal", 0, 3, 1, 3),
    Sketcher.Constraint("Horizontal", 1, 3, 2, 3),
    Sketcher.Constraint("Diameter", 0, Q("5 mm")),
    Sketcher.Constraint("Diameter", 2, Q("8 mm")),
    Sketcher.Constraint("DistanceX", -1, 1, 2, 3, Q("15 mm")),
    Sketcher.Constraint("DistanceY", -1, 1, 0, 3, Q("13.5 mm")),
    Sketcher.Constraint("DistanceX", 1, 3, 0, 3, Q("36.5 mm")),
    Sketcher.Constraint("DistanceX", -1, 1, 0, 3, Q("33.25 mm")),
])
pocket2 = body.newObject("PartDesign::Pocket", "Pocket001")
pocket2.Profile = sketch6
pocket2.Length = 6

doc.recompute()
